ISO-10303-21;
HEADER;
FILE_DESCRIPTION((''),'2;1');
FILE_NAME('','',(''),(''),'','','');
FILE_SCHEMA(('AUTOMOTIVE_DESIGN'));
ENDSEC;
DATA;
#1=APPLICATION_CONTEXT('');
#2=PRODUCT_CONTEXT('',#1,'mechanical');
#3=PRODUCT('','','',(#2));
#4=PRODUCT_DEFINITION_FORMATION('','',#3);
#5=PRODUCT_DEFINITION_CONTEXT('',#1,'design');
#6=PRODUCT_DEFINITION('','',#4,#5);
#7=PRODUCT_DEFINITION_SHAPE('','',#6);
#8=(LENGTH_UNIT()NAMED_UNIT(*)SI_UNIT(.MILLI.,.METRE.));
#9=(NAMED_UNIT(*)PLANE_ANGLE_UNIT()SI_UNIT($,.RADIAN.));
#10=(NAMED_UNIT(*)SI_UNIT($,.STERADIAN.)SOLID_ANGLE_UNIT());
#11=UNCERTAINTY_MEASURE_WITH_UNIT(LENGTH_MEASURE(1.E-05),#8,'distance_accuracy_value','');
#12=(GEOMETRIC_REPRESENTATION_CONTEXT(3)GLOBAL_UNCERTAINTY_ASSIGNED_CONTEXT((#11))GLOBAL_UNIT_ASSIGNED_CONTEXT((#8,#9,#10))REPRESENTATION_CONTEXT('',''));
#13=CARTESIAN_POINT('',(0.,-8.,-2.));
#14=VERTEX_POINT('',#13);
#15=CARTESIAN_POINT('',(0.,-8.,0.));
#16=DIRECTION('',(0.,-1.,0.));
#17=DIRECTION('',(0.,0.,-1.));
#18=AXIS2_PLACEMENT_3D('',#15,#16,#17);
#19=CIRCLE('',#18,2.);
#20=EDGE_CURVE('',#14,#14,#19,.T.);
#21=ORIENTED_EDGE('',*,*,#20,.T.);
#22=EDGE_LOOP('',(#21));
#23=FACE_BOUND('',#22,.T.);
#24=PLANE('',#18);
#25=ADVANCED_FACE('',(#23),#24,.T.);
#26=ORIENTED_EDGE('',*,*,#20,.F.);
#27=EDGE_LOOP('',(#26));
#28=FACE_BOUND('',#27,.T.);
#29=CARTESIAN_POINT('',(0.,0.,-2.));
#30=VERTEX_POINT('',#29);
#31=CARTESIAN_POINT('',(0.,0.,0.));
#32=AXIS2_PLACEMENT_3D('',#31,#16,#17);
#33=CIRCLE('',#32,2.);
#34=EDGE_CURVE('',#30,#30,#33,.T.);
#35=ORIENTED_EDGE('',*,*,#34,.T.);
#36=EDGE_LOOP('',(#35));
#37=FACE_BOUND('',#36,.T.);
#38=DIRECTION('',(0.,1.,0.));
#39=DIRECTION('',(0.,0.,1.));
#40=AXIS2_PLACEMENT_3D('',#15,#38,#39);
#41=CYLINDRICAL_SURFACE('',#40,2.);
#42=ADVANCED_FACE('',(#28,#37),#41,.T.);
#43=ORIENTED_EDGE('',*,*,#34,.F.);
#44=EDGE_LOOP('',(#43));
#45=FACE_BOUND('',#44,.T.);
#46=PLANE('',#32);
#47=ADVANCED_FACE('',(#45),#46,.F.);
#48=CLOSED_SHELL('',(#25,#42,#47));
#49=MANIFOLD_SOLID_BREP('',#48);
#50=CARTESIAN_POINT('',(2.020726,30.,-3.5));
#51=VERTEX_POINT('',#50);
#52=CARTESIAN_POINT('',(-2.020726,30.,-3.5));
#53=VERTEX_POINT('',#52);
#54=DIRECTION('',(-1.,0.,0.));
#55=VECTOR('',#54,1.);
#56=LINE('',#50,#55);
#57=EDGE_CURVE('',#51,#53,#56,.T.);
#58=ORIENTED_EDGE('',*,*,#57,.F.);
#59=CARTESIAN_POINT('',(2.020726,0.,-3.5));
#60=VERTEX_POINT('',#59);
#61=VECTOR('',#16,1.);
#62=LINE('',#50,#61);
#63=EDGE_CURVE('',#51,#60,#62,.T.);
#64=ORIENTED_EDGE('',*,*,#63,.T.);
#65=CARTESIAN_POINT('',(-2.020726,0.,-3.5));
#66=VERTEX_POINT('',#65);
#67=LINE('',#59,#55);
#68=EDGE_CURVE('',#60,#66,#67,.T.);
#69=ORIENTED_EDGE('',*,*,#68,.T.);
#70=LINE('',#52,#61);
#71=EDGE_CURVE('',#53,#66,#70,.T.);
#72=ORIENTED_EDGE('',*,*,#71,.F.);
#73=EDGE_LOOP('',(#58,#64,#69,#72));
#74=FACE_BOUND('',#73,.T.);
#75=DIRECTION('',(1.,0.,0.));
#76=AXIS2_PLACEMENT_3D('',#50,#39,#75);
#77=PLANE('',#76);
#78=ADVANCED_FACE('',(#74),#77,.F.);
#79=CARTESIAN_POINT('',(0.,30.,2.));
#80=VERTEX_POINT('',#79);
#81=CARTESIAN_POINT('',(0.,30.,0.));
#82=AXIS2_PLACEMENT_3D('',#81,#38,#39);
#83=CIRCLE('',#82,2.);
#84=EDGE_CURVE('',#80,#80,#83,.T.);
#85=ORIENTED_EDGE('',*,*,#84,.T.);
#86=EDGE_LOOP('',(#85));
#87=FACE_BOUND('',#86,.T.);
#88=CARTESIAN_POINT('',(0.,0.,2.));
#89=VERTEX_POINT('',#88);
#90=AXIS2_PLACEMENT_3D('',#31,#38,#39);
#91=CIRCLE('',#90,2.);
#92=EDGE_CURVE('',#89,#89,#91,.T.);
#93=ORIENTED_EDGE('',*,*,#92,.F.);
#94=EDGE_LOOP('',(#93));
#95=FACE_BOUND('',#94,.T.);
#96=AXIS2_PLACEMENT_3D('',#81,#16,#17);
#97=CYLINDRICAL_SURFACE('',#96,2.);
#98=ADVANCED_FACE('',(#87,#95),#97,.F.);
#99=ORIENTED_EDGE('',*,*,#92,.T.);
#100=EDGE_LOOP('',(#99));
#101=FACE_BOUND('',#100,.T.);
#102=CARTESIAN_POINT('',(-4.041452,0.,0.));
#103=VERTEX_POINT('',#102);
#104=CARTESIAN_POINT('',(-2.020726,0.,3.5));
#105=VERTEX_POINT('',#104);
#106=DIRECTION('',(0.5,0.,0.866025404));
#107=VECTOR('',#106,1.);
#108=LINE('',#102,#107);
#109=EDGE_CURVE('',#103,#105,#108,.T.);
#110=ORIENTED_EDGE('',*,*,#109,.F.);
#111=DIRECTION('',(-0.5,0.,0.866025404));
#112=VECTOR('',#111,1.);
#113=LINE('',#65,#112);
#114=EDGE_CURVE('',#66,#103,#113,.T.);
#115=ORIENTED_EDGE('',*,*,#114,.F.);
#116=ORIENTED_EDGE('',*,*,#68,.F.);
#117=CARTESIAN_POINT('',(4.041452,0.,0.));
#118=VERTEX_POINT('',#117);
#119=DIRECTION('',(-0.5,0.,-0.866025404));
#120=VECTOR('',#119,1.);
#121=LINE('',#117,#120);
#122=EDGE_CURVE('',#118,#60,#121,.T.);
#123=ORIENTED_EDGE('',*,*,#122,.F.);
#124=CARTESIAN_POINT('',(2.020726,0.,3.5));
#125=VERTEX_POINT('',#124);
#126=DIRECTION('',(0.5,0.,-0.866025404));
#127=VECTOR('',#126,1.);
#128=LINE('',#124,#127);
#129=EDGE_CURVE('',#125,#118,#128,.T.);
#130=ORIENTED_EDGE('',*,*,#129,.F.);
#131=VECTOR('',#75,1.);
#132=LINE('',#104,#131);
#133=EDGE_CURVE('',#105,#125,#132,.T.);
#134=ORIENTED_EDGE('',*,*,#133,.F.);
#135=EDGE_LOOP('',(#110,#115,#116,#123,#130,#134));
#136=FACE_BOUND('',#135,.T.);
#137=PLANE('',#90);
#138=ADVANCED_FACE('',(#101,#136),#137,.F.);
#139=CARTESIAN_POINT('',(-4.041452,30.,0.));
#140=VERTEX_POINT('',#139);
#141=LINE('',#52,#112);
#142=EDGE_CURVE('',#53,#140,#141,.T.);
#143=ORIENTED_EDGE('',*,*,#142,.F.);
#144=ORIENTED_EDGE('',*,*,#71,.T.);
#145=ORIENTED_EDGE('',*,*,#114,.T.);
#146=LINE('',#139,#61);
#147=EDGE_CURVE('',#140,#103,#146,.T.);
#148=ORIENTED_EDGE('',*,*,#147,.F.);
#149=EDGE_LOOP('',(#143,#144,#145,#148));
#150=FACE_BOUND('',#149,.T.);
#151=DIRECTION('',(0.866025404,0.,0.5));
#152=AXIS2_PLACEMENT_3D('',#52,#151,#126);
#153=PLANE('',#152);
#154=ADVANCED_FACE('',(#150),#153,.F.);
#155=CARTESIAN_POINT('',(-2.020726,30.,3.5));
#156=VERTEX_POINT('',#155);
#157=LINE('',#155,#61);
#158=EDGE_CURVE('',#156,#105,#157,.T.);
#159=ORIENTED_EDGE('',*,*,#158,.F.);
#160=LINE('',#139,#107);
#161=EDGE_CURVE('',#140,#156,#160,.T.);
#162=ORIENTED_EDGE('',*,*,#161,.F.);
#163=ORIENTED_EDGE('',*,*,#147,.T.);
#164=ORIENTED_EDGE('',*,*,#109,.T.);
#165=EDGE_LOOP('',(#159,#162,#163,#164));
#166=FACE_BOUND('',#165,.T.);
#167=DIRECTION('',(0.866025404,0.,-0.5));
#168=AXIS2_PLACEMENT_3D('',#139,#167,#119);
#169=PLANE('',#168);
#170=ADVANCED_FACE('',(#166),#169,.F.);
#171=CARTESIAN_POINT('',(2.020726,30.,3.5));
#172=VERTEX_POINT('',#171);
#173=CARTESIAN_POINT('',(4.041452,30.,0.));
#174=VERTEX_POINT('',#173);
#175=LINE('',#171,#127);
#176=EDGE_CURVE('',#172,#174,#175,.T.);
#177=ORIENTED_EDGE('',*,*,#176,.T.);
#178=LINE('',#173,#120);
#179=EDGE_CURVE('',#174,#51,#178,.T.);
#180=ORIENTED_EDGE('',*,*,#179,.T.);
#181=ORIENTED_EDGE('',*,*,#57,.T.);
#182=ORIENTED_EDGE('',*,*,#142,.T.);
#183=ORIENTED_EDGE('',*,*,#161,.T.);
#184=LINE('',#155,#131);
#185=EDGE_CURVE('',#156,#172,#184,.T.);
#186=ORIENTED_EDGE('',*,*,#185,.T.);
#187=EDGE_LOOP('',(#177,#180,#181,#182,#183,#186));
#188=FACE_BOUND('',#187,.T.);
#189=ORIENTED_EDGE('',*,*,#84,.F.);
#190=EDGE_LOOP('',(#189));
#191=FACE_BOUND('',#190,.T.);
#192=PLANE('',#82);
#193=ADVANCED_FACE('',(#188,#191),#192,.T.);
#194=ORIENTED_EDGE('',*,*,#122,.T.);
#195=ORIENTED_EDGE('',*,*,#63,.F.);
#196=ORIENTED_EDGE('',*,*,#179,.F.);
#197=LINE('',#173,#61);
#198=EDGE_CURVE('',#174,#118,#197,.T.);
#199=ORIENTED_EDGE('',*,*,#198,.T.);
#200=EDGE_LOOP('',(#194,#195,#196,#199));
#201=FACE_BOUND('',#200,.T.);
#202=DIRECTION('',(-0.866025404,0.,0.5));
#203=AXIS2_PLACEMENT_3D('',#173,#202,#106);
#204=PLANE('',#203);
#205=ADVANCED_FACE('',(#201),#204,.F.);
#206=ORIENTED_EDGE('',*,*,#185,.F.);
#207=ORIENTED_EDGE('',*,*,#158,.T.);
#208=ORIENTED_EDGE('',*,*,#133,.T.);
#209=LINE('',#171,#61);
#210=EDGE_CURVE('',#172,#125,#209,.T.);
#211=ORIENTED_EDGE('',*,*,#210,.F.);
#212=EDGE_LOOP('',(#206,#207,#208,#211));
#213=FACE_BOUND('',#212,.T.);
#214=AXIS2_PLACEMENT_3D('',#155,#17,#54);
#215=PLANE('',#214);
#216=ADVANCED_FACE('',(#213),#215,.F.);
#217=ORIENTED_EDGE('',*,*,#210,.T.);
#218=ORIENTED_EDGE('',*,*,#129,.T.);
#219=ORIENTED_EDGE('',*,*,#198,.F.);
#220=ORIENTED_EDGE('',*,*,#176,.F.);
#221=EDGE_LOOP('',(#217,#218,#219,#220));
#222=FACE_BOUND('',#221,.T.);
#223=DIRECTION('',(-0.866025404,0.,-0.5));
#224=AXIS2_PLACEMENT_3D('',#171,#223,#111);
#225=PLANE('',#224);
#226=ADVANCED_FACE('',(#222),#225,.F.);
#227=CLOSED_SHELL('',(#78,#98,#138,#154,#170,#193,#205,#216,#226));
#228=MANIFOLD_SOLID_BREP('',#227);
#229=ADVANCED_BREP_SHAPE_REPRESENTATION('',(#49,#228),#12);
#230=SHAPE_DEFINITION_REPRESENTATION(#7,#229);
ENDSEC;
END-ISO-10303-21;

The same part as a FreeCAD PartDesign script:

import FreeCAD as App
import Part
import Sketcher

V = App.Vector
Q = App.Units.Quantity


def add_polygon(sketch, points):
    """Adds a closed chain of lines whose ends are joined by coincident constraints."""
    first, n = sketch.GeometryCount, len(points)
    for a, b in zip(points, points[1:] + points[:1]):
        sketch.addGeometry(Part.LineSegment(App.Vector(*a, 0), App.Vector(*b, 0)), False)
    for i in range(n):
        sketch.addConstraint(Sketcher.Constraint("Coincident", first + i, 2, first + (i + 1) % n, 1))

doc = App.newDocument("Part")
body = doc.addObject("PartDesign::Body", "Body")

sketch1 = body.newObject("Sketcher::SketchObject", "Sketch")
sketch1.AttachmentSupport = (doc.getObject("XZ_Plane"), [""])
sketch1.MapMode = "FlatFace"
add_polygon(sketch1, [(4, 0), (2, -3.5), (-2, -3.5), (-4, 0), (-2, 3.5), (2, 3.5)])
sketch1.addGeometry(Part.Circle(V(0, 0, 0), V(0, 0, 1), 2), False)
sketch1.addConstraint([
    Sketcher.Constraint("Horizontal", 1),
    Sketcher.Constraint("Horizontal", 4),
    Sketcher.Constraint("Coincident", 6, 3, -1, 1),
    Sketcher.Constraint("Symmetric", 0, 2, 3, 2, -1, 1),
    Sketcher.Constraint("Symmetric", 2, 2, 5, 2, -1, 1),
    Sketcher.Constraint("PointOnObject", 2, 2, -1),
    Sketcher.Constraint("Parallel", 2, 5),
    Sketcher.Constraint("Vertical", 1, 2, 3, 2),
    Sketcher.Constraint("Diameter", 6, Q("4 mm")),
    Sketcher.Constraint("Angle", 0, Q("-120 deg")),
    Sketcher.Constraint("DistanceY", 1, 2, 3, 2, Q("7 mm")),
    Sketcher.Constraint("DistanceX", 1, 2, 1, 1, Q("4.041452 mm")),
])
pad1 = body.newObject("PartDesign::Pad", "Pad")
pad1.Profile = sketch1
pad1.Length = 30
pad1.Reversed = True
body2 = doc.addObject("PartDesign::Body", "Body001")

sketch2 = body2.newObject("Sketcher::SketchObject", "Sketch001")
sketch2.AttachmentSupport = (doc.getObject("XZ_Plane001"), [""])
sketch2.MapMode = "FlatFace"
sketch2.addGeometry(Part.Circle(V(0, 0, 0), V(0, 0, 1), 2), False)
sketch2.addConstraint([
    Sketcher.Constraint("Coincident", 0, 3, -1, 1),
    Sketcher.Constraint("Diameter", 0, Q("4 mm")),
])
pad2 = body2.newObject("PartDesign::Pad", "Pad001")
pad2.Profile = sketch2
pad2.Length = 8

doc.recompute()
